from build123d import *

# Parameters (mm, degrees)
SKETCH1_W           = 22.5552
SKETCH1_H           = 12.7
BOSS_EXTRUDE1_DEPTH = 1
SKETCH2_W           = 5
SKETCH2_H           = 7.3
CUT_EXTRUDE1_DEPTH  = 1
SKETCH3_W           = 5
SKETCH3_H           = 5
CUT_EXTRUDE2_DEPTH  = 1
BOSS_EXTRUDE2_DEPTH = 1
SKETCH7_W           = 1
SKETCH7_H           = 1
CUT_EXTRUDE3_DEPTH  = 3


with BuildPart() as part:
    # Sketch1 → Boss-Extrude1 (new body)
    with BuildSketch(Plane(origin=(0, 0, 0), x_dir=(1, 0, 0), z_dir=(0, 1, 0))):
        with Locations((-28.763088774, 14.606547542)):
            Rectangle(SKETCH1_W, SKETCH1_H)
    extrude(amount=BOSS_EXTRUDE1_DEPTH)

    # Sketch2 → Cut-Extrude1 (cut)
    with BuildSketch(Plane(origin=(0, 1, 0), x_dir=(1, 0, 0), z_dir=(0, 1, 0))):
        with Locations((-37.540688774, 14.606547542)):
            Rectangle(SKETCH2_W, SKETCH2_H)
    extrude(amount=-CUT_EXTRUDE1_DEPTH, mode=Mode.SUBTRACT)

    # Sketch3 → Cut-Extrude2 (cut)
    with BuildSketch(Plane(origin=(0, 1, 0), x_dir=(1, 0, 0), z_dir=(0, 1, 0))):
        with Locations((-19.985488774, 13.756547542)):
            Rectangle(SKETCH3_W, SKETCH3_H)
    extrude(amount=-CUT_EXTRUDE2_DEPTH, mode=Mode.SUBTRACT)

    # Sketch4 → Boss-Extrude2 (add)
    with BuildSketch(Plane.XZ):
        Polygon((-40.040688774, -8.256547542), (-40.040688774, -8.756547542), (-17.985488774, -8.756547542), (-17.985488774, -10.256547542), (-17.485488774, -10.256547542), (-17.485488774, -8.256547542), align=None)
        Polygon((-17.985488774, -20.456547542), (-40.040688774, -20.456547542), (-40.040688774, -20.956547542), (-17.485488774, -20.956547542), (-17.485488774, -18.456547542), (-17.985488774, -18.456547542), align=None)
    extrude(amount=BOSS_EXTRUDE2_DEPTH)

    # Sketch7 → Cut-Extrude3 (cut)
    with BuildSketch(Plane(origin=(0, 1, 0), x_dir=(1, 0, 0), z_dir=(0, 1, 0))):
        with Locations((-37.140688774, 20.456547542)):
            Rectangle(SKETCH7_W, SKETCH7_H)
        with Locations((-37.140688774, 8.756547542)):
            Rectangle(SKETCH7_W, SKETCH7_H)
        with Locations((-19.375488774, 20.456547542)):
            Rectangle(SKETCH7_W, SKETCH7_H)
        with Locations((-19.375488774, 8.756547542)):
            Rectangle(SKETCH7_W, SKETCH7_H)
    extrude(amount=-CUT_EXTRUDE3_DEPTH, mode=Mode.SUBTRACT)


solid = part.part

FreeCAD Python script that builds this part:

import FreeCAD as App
import Part
import Sketcher
from FreeCAD import Vector


def add_polygon(sketch, points):
    """Adds a closed chain of lines whose ends are joined by coincident constraints."""
    first, n = sketch.GeometryCount, len(points)
    for a, b in zip(points, points[1:] + points[:1]):
        sketch.addGeometry(Part.LineSegment(App.Vector(*a, 0), App.Vector(*b, 0)), False)
    for i in range(n):
        sketch.addConstraint(Sketcher.Constraint("Coincident", first + i, 2, first + (i + 1) % n, 1))

doc = App.newDocument("Part")
params = doc.addObject("Spreadsheet::Sheet", "Params")
for row, (alias, value) in enumerate([
    ("sketch1_height", "12.7 mm"),
    ("pad1_length", "1 mm"),
    ("sketch2_width", "5 mm"),
    ("sketch2_height", "7.3 mm"),
    ("pocket1_length", "1 mm"),
    ("sketch3_width", "5 mm"),
    ("pocket2_length", "1 mm"),
    ("sketch4_height", "2 mm"),
    ("sketch4_width", "0.5 mm"),
    ("pad2_length", "1 mm"),
    ("sketch5_width", "1 mm"),
    ("pocket3_length", "3 mm"),
], start=1):
    params.set(f"A{row}", alias)
    params.set(f"B{row}", "=" + value)
    params.setAlias(f"B{row}", alias)

body = doc.addObject("PartDesign::Body", "Body")

# Sketch on XZ plane
sketch1 = doc.addObject("Sketcher::SketchObject", "Sketch")
body.addObject(sketch1)
sketch1.AttachmentSupport = (doc.XZ_Plane, [""])
sketch1.MapMode = "FlatFace"
add_polygon(sketch1, [(-40, -21), (-40, -8), (-17, -8), (-17, -21)])  # lines 0-3
sketch1.addConstraint(Sketcher.Constraint("Vertical", 0))
sketch1.addConstraint(Sketcher.Constraint("Horizontal", 1))
sketch1.addConstraint(Sketcher.Constraint("Vertical", 2))
sketch1.addConstraint(Sketcher.Constraint("Horizontal", 3))
sketch1.addConstraint(Sketcher.Constraint("DistanceY", 0, 1, 0, 2, 12.7))
sketch1.addConstraint(Sketcher.Constraint("DistanceX", 1, 1, 1, 2, 22.5552))
sketch1.addConstraint(Sketcher.Constraint("DistanceX", 0, 2, -1, 1, 40.040689))
sketch1.addConstraint(Sketcher.Constraint("DistanceY", 0, 2, -1, 1, 8.256548))
sketch1.setExpression("Constraints[8]", "Params.sketch1_height")
pad1 = doc.addObject("PartDesign::Pad", "Pad")
body.addObject(pad1)
pad1.Profile = sketch1
pad1.setExpression("Length", "Params.pad1_length")
pad1.Reversed = True

# Sketch on XZ plane
sketch2 = doc.addObject("Sketcher::SketchObject", "Sketch001")
body.addObject(sketch2)
sketch2.AttachmentSupport = (doc.XZ_Plane, [""])
sketch2.MapMode = "FlatFace"
sketch2.AttachmentOffset = App.Placement(Vector(0, 0, -1), App.Rotation())
add_polygon(sketch2, [(-40, -18), (-40, -11), (-35, -11), (-35, -18)])  # lines 0-3
sketch2.addConstraint(Sketcher.Constraint("Vertical", 0))
sketch2.addConstraint(Sketcher.Constraint("Horizontal", 1))
sketch2.addConstraint(Sketcher.Constraint("Vertical", 2))
sketch2.addConstraint(Sketcher.Constraint("Horizontal", 3))
sketch2.addConstraint(Sketcher.Constraint("DistanceX", 1, 1, 1, 2, 5.0))
sketch2.addConstraint(Sketcher.Constraint("DistanceY", 0, 1, 0, 2, 7.3))
sketch2.addConstraint(Sketcher.Constraint("DistanceX", 0, 2, -1, 1, 40.040689))
sketch2.addConstraint(Sketcher.Constraint("DistanceY", 0, 2, -1, 1, 10.956548))
sketch2.setExpression("Constraints[8]", "Params.sketch2_width")
sketch2.setExpression("Constraints[9]", "Params.sketch2_height")
pocket1 = doc.addObject("PartDesign::Pocket", "Pocket")
body.addObject(pocket1)
pocket1.Profile = sketch2
pocket1.setExpression("Length", "Params.pocket1_length")
pocket1.Reversed = True

# Sketch on XZ plane
sketch3 = doc.addObject("Sketcher::SketchObject", "Sketch002")
body.addObject(sketch3)
sketch3.AttachmentSupport = (doc.XZ_Plane, [""])
sketch3.MapMode = "FlatFace"
sketch3.AttachmentOffset = App.Placement(Vector(0, 0, -1), App.Rotation())
add_polygon(sketch3, [(-22, -16), (-22, -11), (-17, -11), (-17, -16)])  # lines 0-3
sketch3.addConstraint(Sketcher.Constraint("Vertical", 0))
sketch3.addConstraint(Sketcher.Constraint("Horizontal", 1))
sketch3.addConstraint(Sketcher.Constraint("Vertical", 2))
sketch3.addConstraint(Sketcher.Constraint("Horizontal", 3))
sketch3.addConstraint(Sketcher.Constraint("Equal", 3, 0))
sketch3.addConstraint(Sketcher.Constraint("DistanceX", 1, 1, 1, 2, 5.0))
sketch3.addConstraint(Sketcher.Constraint("DistanceX", 0, 2, -1, 1, 22.485489))
sketch3.addConstraint(Sketcher.Constraint("DistanceY", 0, 2, -1, 1, 11.256548))
sketch3.setExpression("Constraints[9]", "Params.sketch3_width")
pocket2 = doc.addObject("PartDesign::Pocket", "Pocket001")
body.addObject(pocket2)
pocket2.Profile = sketch3
pocket2.setExpression("Length", "Params.pocket2_length")
pocket2.Reversed = True

# Sketch on XZ plane
sketch4 = doc.addObject("Sketcher::SketchObject", "Sketch003")
body.addObject(sketch4)
sketch4.AttachmentSupport = (doc.XZ_Plane, [""])
sketch4.MapMode = "FlatFace"
add_polygon(sketch4, [(-40, -8.3), (-40, -8.8), (-18, -8.8), (-18, -10.3), (-17.5, -10.3), (-17.5, -8.3)])  # lines 0-5
add_polygon(sketch4, [(-18, -20.5), (-40, -20.5), (-40, -21), (-17.5, -21), (-17.5, -18.5), (-18, -18.5)])  # lines 6-11
sketch4.addConstraint(Sketcher.Constraint("Vertical", 0))
sketch4.addConstraint(Sketcher.Constraint("Horizontal", 1))
sketch4.addConstraint(Sketcher.Constraint("Vertical", 2))
sketch4.addConstraint(Sketcher.Constraint("Horizontal", 3))
sketch4.addConstraint(Sketcher.Constraint("Vertical", 4))
sketch4.addConstraint(Sketcher.Constraint("Horizontal", 5))
sketch4.addConstraint(Sketcher.Constraint("Horizontal", 6))
sketch4.addConstraint(Sketcher.Constraint("Vertical", 7))
sketch4.addConstraint(Sketcher.Constraint("Horizontal", 8))
sketch4.addConstraint(Sketcher.Constraint("Vertical", 9))
sketch4.addConstraint(Sketcher.Constraint("Horizontal", 10))
sketch4.addConstraint(Sketcher.Constraint("Vertical", 11))
sketch4.addConstraint(Sketcher.Constraint("Vertical", 5, 2, 6, 2))
sketch4.addConstraint(Sketcher.Constraint("Vertical", 4, 2, 8, 2))
sketch4.addConstraint(Sketcher.Constraint("Vertical", 2, 2, 10, 2))
sketch4.addConstraint(Sketcher.Constraint("Equal", 10, 0))
sketch4.addConstraint(Sketcher.Constraint("Equal", 0, 7))
sketch4.addConstraint(Sketcher.Constraint("Equal", 4, 11))
sketch4.addConstraint(Sketcher.Constraint("DistanceY", 4, 1, 4, 2, 2.0))
sketch4.addConstraint(Sketcher.Constraint("DistanceX", 3, 1, 3, 2, 0.5))
sketch4.addConstraint(Sketcher.Constraint("DistanceY", 6, 2, 0, 2, 11.7))
sketch4.addConstraint(Sketcher.Constraint("DistanceX", 1, 1, 1, 2, 22.0552))
sketch4.addConstraint(Sketcher.Constraint("DistanceX", 0, 2, -1, 1, 40.040689))
sketch4.addConstraint(Sketcher.Constraint("DistanceY", 0, 2, -1, 1, 8.756548))
sketch4.setExpression("Constraints[30]", "Params.sketch4_height")
sketch4.setExpression("Constraints[31]", "Params.sketch4_width")
pad2 = doc.addObject("PartDesign::Pad", "Pad001")
body.addObject(pad2)
pad2.Profile = sketch4
pad2.setExpression("Length", "Params.pad2_length")

# Sketch on XZ plane
sketch5 = doc.addObject("Sketcher::SketchObject", "Sketch004")
body.addObject(sketch5)
sketch5.AttachmentSupport = (doc.XZ_Plane, [""])
sketch5.MapMode = "FlatFace"
sketch5.AttachmentOffset = App.Placement(Vector(0, 0, -1), App.Rotation())
add_polygon(sketch5, [(-37.6, -21), (-37.6, -20), (-36.6, -20), (-36.6, -21)])  # lines 0-3
add_polygon(sketch5, [(-37.6, -9.3), (-37.6, -8.3), (-36.6, -8.3), (-36.6, -9.3)])  # lines 4-7
add_polygon(sketch5, [(-19.9, -21), (-19.9, -20), (-18.9, -20), (-18.9, -21)])  # lines 8-11
add_polygon(sketch5, [(-19.9, -9.3), (-19.9, -8.3), (-18.9, -8.3), (-18.9, -9.3)])  # lines 12-15
sketch5.addConstraint(Sketcher.Constraint("Vertical", 0))
sketch5.addConstraint(Sketcher.Constraint("Horizontal", 1))
sketch5.addConstraint(Sketcher.Constraint("Vertical", 2))
sketch5.addConstraint(Sketcher.Constraint("Horizontal", 3))
sketch5.addConstraint(Sketcher.Constraint("Vertical", 4))
sketch5.addConstraint(Sketcher.Constraint("Horizontal", 5))
sketch5.addConstraint(Sketcher.Constraint("Vertical", 6))
sketch5.addConstraint(Sketcher.Constraint("Horizontal", 7))
sketch5.addConstraint(Sketcher.Constraint("Vertical", 8))
sketch5.addConstraint(Sketcher.Constraint("Horizontal", 9))
sketch5.addConstraint(Sketcher.Constraint("Vertical", 10))
sketch5.addConstraint(Sketcher.Constraint("Horizontal", 11))
sketch5.addConstraint(Sketcher.Constraint("Vertical", 12))
sketch5.addConstraint(Sketcher.Constraint("Horizontal", 13))
sketch5.addConstraint(Sketcher.Constraint("Vertical", 14))
sketch5.addConstraint(Sketcher.Constraint("Horizontal", 15))
sketch5.addConstraint(Sketcher.Constraint("Horizontal", 1, 2, 8, 2))
sketch5.addConstraint(Sketcher.Constraint("Horizontal", 3, 2, 10, 2))
sketch5.addConstraint(Sketcher.Constraint("Horizontal", 5, 2, 12, 2))
sketch5.addConstraint(Sketcher.Constraint("Horizontal", 7, 2, 14, 2))
sketch5.addConstraint(Sketcher.Constraint("Vertical", 3, 2, 4, 2))
sketch5.addConstraint(Sketcher.Constraint("Vertical", 2, 2, 5, 2))
sketch5.addConstraint(Sketcher.Constraint("Vertical", 11, 2, 12, 2))
sketch5.addConstraint(Sketcher.Constraint("Vertical", 10, 2, 13, 2))
sketch5.addConstraint(Sketcher.Constraint("Equal", 7, 9))
sketch5.addConstraint(Sketcher.Constraint("Equal", 15, 0))
sketch5.addConstraint(Sketcher.Constraint("Equal", 2, 4))
sketch5.addConstraint(Sketcher.Constraint("DistanceX", 1, 1, 1, 2, 1.0))
sketch5.addConstraint(Sketcher.Constraint("DistanceY", 0, 2, 4, 2, 11.7))
sketch5.addConstraint(Sketcher.Constraint("DistanceX", 1, 2, 8, 2, 16.7652))
sketch5.addConstraint(Sketcher.Constraint("DistanceX", 0, 2, -1, 1, 37.640689))
sketch5.addConstraint(Sketcher.Constraint("DistanceY", 0, 2, -1, 1, 19.956548))
sketch5.setExpression("Constraints[43]", "Params.sketch5_width")
pocket3 = doc.addObject("PartDesign::Pocket", "Pocket002")
body.addObject(pocket3)
pocket3.Profile = sketch5
pocket3.setExpression("Length", "Params.pocket3_length")
pocket3.Reversed = True

doc.recompute()
